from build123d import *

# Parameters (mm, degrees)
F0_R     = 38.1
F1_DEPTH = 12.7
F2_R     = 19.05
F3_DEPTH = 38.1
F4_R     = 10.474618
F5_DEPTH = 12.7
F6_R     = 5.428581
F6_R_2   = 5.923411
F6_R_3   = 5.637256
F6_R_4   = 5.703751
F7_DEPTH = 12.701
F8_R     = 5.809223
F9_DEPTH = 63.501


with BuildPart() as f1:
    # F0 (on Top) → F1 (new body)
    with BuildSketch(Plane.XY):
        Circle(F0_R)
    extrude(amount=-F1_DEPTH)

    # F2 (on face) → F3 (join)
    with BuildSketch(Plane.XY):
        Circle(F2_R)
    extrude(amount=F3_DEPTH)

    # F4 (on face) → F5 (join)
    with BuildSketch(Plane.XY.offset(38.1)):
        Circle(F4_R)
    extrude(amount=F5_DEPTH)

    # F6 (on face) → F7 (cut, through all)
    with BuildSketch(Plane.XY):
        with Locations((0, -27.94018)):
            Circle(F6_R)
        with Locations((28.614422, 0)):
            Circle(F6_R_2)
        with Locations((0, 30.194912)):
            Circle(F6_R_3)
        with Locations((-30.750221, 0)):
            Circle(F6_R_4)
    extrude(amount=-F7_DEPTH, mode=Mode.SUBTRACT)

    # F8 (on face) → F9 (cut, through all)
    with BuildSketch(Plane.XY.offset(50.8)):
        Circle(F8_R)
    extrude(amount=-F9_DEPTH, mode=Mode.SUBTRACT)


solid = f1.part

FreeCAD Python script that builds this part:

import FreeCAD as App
import Part
import Sketcher
Q = App.Units.Quantity

doc = App.newDocument("Part")
params = doc.addObject("Spreadsheet::Sheet", "Params")
for row, (alias, value) in enumerate([
    ("sketch1_diameter", "3 in"),
    ("pad1_length", "0.5 in"),
    ("sketch2_diameter", "1.5 in"),
    ("pad2_length", "1.5 in"),
    ("pad3_length", "0.5 in"),
], start=1):
    params.set(f"A{row}", alias)
    params.set(f"B{row}", "=" + value)
    params.setAlias(f"B{row}", alias)

body = doc.addObject("PartDesign::Body", "Body")

sketch1 = body.newObject("Sketcher::SketchObject", "Sketch")
sketch1.AttachmentSupport = (doc.getObject("XY_Plane"), [""])
sketch1.MapMode = "FlatFace"
sketch1.addGeometry(Part.Circle(App.Vector(0, 0, 0), App.Vector(0, 0, 1), 38), False)
sketch1.addConstraint([
    Sketcher.Constraint("Coincident", 0, 3, -1, 1),
    Sketcher.Constraint("Diameter", 0, Q("3 in")),
])
sketch1.setExpression("Constraints[1]", "Params.sketch1_diameter")
pad1 = body.newObject("PartDesign::Pad", "Pad")
pad1.Profile = sketch1
pad1.setExpression("Length", "Params.pad1_length")
pad1.Reversed = True

sketch2 = body.newObject("Sketcher::SketchObject", "Sketch001")
sketch2.AttachmentSupport = (doc.getObject("XY_Plane"), [""])
sketch2.MapMode = "FlatFace"
sketch2.addGeometry(Part.Circle(App.Vector(0, 0, 0), App.Vector(0, 0, 1), 19), False)
sketch2.addConstraint([
    Sketcher.Constraint("Coincident", 0, 3, -1, 1),
    Sketcher.Constraint("Diameter", 0, Q("1.5 in")),
])
sketch2.setExpression("Constraints[1]", "Params.sketch2_diameter")
pad2 = body.newObject("PartDesign::Pad", "Pad001")
pad2.Profile = sketch2
pad2.setExpression("Length", "Params.pad2_length")

sketch3 = body.newObject("Sketcher::SketchObject", "Sketch002")
sketch3.AttachmentSupport = (doc.getObject("XY_Plane"), [""])
sketch3.MapMode = "FlatFace"
sketch3.AttachmentOffset = App.Placement(App.Vector(0, 0, 1.5 * 25.4), App.Rotation())
sketch3.addGeometry(Part.Circle(App.Vector(0, 0, 0), App.Vector(0, 0, 1), 10), False)
sketch3.addConstraint([
    Sketcher.Constraint("Coincident", 0, 3, -1, 1),
    Sketcher.Constraint("Diameter", 0, 20.949236),
])
pad3 = body.newObject("PartDesign::Pad", "Pad002")
pad3.Profile = sketch3
pad3.setExpression("Length", "Params.pad3_length")

sketch4 = body.newObject("Sketcher::SketchObject", "Sketch003")
sketch4.AttachmentSupport = (doc.getObject("XY_Plane"), [""])
sketch4.MapMode = "FlatFace"
sketch4.addGeometry([
    Part.Circle(App.Vector(0, -28, 0), App.Vector(0, 0, 1), 5),
    Part.Circle(App.Vector(29, 0, 0), App.Vector(0, 0, 1), 6),
    Part.Circle(App.Vector(0, 30, 0), App.Vector(0, 0, 1), 6),
    Part.Circle(App.Vector(-31, 0, 0), App.Vector(0, 0, 1), 6),
], False)
sketch4.addConstraint([
    Sketcher.Constraint("PointOnObject", 0, 3, -2),
    Sketcher.Constraint("PointOnObject", 1, 3, -1),
    Sketcher.Constraint("PointOnObject", 2, 3, -2),
    Sketcher.Constraint("PointOnObject", 3, 3, -1),
    Sketcher.Constraint("Diameter", 3, 11.407502),
    Sketcher.Constraint("Diameter", 0, 10.857162),
    Sketcher.Constraint("Diameter", 1, 11.846822),
    Sketcher.Constraint("Diameter", 2, 11.274512),
    Sketcher.Constraint("DistanceY", 0, 3, -1, 1, 27.94018),
    Sketcher.Constraint("DistanceY", -1, 1, 2, 3, 30.194912),
    Sketcher.Constraint("DistanceX", 3, 3, -1, 1, 30.750221),
    Sketcher.Constraint("DistanceX", -1, 1, 1, 3, 28.614422),
])
pocket1 = body.newObject("PartDesign::Pocket", "Pocket")
pocket1.Profile = sketch4
pocket1.Type = "ThroughAll"

sketch5 = body.newObject("Sketcher::SketchObject", "Sketch004")
sketch5.AttachmentSupport = (doc.getObject("XY_Plane"), [""])
sketch5.MapMode = "FlatFace"
sketch5.AttachmentOffset = App.Placement(App.Vector(0, 0, 2 * 25.4), App.Rotation())
sketch5.addGeometry(Part.Circle(App.Vector(0, 0, 0), App.Vector(0, 0, 1), 6), False)
sketch5.addConstraint([
    Sketcher.Constraint("Coincident", 0, 3, -1, 1),
    Sketcher.Constraint("Diameter", 0, 11.618446),
])
pocket2 = body.newObject("PartDesign::Pocket", "Pocket001")
pocket2.Profile = sketch5
pocket2.Type = "ThroughAll"

doc.recompute()
